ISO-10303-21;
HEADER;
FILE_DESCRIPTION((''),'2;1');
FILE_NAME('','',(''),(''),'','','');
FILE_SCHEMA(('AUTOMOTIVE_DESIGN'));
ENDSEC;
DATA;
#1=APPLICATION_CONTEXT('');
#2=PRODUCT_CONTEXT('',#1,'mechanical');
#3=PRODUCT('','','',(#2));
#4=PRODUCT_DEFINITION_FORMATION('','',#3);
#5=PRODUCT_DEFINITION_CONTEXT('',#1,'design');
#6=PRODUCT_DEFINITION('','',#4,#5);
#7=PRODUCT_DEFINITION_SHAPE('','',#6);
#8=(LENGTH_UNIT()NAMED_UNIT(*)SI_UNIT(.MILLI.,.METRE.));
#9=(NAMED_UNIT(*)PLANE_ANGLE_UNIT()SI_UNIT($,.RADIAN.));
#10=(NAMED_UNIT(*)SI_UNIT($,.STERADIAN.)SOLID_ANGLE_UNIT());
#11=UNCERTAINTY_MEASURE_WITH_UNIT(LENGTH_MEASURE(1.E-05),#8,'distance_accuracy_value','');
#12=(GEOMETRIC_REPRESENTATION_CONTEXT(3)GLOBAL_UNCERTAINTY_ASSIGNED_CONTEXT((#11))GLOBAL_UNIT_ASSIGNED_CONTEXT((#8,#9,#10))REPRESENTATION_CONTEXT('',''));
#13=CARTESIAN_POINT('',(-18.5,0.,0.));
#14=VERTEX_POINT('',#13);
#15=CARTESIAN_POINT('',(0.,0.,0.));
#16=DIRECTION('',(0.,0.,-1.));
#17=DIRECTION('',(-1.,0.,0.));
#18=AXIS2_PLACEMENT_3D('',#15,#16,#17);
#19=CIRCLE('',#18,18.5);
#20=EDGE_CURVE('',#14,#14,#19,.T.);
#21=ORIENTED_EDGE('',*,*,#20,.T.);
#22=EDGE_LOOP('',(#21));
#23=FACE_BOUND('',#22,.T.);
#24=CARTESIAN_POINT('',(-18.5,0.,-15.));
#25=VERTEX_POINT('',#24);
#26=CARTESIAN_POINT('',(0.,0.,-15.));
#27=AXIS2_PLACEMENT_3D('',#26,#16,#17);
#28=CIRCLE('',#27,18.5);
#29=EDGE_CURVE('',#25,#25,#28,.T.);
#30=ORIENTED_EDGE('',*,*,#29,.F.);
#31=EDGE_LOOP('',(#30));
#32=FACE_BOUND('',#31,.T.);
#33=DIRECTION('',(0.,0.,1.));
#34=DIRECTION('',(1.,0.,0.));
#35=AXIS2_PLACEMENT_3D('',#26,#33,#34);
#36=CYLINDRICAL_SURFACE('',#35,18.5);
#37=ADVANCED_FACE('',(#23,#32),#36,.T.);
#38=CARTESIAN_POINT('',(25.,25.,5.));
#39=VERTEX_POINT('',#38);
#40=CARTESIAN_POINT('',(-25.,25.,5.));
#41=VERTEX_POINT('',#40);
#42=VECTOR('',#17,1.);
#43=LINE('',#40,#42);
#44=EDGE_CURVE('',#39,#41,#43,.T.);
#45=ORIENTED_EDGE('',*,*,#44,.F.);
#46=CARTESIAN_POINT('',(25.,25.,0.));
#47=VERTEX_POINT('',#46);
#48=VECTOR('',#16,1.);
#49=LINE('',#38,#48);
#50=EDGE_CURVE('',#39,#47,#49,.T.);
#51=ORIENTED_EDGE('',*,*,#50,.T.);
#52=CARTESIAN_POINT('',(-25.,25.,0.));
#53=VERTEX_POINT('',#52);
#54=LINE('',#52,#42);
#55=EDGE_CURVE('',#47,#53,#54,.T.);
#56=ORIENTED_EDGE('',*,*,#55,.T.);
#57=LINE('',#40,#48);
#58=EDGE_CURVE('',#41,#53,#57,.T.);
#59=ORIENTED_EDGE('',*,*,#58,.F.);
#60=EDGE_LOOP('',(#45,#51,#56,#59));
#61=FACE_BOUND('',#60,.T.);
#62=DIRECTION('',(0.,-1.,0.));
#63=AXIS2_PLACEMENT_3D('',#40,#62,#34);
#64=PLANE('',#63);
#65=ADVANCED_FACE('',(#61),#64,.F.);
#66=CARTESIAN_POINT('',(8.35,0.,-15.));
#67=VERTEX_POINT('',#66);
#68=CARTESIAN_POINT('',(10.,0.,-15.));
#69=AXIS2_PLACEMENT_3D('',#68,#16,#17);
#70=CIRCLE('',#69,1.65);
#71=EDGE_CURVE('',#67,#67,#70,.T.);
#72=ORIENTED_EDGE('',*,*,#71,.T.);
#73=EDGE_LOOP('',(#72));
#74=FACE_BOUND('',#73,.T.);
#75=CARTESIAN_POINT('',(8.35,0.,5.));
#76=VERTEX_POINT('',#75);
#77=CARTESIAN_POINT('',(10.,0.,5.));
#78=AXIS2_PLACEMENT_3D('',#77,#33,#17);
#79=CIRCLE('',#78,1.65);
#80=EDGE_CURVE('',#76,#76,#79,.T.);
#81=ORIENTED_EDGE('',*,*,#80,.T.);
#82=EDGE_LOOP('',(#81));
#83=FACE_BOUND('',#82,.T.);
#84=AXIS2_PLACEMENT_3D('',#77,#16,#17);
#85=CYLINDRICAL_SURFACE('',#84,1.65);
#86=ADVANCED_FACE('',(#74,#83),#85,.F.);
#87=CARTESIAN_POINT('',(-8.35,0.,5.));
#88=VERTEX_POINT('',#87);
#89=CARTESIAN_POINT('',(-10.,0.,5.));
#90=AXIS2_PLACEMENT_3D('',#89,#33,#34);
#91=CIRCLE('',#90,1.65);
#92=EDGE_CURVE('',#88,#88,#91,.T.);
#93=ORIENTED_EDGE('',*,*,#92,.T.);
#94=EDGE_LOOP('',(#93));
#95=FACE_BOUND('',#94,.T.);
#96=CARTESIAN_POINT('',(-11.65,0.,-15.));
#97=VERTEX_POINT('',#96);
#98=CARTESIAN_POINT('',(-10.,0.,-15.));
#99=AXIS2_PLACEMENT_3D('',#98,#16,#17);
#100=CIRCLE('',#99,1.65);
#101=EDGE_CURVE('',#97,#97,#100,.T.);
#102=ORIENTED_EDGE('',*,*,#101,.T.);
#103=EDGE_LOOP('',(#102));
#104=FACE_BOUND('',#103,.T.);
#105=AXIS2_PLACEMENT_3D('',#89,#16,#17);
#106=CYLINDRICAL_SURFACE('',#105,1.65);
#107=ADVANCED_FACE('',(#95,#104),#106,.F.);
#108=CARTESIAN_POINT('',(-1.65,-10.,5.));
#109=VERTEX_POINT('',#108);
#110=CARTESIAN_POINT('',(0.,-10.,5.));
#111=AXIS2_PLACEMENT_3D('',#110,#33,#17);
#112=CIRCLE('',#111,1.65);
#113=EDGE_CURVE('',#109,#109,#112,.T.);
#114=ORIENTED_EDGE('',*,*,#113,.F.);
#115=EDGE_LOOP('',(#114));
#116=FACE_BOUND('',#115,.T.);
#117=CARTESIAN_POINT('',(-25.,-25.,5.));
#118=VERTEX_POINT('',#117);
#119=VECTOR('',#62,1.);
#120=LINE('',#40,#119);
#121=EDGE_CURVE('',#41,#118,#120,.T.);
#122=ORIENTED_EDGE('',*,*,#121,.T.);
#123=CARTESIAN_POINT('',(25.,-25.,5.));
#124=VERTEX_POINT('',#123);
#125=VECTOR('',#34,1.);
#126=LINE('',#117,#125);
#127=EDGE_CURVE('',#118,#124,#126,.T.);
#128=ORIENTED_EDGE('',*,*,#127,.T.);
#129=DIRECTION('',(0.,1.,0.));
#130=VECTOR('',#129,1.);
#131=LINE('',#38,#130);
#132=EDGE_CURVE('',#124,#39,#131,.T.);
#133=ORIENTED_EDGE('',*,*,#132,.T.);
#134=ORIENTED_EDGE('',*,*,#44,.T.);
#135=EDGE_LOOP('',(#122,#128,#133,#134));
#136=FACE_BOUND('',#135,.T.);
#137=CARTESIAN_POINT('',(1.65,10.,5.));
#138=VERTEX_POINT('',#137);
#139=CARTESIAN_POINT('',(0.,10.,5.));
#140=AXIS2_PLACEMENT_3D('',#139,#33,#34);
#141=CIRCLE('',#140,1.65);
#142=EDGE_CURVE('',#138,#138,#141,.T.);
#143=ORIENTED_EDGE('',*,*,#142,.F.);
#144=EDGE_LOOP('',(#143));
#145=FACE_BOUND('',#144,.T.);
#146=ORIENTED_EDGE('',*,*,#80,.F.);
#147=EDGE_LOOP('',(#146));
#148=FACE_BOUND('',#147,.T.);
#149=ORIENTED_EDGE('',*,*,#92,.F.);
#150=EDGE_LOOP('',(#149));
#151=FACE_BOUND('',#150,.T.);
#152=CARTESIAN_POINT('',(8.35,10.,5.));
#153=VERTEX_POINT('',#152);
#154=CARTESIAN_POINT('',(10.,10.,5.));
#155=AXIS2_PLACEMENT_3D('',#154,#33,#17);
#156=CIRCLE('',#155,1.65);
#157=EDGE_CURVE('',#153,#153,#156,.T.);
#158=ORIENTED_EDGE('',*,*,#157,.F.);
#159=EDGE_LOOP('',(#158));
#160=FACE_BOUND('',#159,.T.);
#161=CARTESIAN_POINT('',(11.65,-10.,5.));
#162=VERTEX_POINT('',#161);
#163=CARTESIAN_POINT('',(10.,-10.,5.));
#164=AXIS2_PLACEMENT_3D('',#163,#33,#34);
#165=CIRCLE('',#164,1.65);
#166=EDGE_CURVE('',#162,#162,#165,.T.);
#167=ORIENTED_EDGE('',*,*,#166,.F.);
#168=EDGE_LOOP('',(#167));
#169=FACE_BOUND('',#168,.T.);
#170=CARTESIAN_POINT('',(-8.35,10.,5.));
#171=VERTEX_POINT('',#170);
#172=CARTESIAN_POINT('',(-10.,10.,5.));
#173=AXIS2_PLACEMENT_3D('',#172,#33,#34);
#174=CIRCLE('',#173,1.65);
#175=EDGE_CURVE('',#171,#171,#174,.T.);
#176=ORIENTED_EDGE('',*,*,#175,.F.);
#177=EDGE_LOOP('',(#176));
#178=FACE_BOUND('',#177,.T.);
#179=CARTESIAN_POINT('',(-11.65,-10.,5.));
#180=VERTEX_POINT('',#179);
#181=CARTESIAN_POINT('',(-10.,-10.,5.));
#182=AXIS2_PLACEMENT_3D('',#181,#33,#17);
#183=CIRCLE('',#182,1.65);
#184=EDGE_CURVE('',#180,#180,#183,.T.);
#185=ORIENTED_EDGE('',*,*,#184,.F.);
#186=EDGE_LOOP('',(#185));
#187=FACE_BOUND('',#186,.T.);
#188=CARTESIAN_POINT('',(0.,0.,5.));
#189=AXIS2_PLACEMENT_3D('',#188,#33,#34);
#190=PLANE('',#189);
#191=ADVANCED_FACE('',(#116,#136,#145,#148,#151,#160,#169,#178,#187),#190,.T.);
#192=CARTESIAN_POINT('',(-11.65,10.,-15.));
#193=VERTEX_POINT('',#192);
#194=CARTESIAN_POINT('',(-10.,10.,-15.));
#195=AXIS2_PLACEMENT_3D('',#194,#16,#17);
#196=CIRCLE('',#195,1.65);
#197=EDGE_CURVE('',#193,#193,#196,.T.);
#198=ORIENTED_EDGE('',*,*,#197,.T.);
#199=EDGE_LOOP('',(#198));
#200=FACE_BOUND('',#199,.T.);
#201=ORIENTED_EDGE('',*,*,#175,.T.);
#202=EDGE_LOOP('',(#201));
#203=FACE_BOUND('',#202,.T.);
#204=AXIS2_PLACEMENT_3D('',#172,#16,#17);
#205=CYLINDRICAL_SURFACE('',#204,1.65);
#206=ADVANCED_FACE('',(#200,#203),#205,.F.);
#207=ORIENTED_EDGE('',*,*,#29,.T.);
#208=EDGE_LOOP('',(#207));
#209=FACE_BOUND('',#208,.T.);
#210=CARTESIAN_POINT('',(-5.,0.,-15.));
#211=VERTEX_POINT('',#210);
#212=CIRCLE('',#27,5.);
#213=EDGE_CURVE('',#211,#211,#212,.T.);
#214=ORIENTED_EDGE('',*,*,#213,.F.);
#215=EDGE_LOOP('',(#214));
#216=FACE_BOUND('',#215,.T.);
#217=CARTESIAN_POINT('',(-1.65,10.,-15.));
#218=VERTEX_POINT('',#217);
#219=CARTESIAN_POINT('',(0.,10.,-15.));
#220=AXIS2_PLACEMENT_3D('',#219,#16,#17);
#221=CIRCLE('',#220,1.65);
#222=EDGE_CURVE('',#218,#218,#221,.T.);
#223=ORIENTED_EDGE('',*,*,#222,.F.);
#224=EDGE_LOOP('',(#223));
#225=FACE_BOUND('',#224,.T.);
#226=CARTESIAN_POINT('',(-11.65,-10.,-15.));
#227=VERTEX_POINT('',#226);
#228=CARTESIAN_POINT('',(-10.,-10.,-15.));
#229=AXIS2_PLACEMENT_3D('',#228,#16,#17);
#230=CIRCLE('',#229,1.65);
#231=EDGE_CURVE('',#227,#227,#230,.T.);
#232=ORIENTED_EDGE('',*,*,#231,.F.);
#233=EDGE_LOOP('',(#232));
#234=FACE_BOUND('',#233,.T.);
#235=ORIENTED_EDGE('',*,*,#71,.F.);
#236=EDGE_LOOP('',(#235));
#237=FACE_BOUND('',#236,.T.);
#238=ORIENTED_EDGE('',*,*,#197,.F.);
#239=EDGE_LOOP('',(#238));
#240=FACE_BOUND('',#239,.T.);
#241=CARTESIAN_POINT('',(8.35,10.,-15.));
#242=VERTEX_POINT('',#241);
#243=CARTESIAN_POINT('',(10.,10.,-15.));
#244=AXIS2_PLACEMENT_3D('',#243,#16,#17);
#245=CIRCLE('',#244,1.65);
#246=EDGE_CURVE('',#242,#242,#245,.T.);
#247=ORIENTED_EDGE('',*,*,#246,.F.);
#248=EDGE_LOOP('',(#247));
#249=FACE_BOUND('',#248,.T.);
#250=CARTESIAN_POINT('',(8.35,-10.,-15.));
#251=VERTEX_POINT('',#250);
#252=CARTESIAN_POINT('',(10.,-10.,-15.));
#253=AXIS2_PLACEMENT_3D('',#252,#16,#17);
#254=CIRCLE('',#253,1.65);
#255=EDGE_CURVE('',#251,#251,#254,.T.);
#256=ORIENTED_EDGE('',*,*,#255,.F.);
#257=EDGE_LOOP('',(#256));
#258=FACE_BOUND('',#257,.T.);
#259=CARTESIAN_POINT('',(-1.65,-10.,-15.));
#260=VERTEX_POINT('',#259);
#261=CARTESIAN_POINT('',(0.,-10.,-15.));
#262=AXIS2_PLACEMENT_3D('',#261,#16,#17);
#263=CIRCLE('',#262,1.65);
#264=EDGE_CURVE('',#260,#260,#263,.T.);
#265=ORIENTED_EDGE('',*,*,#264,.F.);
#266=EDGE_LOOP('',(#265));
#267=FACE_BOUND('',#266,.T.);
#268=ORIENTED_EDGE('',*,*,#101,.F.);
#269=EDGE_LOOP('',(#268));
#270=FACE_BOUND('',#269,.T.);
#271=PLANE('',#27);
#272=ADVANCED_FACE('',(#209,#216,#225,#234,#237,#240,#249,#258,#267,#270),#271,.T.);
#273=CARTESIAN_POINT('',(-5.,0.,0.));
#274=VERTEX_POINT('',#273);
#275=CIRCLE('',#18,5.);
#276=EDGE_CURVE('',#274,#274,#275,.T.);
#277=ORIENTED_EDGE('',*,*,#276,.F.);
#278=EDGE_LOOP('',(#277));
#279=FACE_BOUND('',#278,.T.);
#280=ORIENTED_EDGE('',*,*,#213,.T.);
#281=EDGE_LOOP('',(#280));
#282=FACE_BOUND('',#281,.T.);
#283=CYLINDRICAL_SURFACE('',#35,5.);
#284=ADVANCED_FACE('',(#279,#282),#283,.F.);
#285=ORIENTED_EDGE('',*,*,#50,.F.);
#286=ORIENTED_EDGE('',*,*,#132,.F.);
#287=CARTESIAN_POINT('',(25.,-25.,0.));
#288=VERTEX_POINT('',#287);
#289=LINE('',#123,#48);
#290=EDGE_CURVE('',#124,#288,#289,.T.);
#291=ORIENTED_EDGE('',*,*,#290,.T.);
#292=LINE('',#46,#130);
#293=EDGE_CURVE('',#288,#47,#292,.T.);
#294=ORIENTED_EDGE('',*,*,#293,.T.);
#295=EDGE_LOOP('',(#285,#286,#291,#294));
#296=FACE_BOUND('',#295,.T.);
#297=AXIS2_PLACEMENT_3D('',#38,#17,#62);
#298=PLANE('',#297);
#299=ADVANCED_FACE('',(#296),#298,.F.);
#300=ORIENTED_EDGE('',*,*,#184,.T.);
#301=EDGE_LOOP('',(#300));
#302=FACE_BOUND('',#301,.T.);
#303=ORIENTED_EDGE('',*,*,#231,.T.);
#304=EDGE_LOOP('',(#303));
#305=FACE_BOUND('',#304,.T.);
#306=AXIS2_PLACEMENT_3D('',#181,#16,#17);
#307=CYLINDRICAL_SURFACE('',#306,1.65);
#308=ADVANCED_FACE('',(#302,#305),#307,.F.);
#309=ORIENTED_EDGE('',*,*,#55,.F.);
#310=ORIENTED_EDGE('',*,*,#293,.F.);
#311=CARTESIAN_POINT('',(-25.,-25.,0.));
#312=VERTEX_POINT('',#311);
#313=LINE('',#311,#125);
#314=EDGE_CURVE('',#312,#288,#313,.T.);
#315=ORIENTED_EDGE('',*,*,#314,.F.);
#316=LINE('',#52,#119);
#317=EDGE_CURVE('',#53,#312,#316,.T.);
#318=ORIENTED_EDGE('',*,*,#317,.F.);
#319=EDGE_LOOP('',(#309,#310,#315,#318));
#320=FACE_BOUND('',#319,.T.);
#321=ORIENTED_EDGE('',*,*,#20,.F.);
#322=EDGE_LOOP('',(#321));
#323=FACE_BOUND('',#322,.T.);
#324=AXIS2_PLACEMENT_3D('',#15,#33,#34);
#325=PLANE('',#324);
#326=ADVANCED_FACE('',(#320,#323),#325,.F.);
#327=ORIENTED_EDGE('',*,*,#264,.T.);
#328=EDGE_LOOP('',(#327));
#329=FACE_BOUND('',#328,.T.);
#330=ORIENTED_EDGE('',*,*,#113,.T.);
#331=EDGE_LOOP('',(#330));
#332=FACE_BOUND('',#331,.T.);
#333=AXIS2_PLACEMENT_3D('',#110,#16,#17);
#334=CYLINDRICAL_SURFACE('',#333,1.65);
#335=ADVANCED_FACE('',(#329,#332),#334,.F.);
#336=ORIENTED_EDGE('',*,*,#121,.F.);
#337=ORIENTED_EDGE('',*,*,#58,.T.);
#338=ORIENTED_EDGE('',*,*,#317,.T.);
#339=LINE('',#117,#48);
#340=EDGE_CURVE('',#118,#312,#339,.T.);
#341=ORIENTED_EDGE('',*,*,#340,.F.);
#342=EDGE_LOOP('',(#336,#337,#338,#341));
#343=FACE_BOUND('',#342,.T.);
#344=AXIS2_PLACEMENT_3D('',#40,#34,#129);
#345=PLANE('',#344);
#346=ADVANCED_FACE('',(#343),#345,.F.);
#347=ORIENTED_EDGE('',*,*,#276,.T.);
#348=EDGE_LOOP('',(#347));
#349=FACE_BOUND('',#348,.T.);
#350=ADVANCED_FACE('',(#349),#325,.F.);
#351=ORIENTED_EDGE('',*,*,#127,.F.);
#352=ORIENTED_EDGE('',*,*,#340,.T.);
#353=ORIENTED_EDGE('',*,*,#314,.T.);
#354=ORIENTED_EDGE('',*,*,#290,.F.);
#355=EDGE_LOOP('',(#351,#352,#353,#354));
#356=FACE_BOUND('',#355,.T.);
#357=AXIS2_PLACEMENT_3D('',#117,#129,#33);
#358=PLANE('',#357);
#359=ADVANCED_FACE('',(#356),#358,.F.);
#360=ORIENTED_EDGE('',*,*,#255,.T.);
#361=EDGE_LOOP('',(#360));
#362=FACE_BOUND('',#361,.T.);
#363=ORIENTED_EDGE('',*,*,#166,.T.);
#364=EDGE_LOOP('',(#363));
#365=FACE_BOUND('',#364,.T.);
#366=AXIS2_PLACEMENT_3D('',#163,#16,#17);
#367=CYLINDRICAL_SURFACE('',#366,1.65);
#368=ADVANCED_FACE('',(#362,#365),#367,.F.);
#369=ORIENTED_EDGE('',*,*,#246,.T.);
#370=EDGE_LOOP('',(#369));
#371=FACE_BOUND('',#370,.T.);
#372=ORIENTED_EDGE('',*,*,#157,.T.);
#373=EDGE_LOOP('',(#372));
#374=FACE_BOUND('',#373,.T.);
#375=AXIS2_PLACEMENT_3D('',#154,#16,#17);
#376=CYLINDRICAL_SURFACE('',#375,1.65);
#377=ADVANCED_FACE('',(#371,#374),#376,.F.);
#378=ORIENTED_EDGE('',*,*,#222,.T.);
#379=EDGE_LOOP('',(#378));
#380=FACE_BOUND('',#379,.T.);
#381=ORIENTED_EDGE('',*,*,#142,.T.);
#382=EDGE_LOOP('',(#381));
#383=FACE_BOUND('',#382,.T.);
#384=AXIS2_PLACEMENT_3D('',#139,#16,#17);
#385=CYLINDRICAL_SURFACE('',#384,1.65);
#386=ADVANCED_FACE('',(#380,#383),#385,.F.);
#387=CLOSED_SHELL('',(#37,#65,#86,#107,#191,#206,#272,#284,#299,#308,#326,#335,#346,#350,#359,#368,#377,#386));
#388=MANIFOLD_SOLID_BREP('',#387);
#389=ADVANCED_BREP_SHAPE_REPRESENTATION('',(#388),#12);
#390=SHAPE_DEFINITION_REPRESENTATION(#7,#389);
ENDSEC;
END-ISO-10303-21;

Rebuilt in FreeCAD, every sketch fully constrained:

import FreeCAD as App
import Part
import Sketcher

V = App.Vector

doc = App.newDocument("Part")
body = doc.addObject("PartDesign::Body", "Body")

# Sketch on XY plane
sketch1 = body.newObject("Sketcher::SketchObject", "Sketch")
sketch1.AttachmentSupport = (doc.getObject("XY_Plane"), [""])
sketch1.MapMode = "FlatFace"
sketch1.addGeometry([
    Part.LineSegment(V(-25, 25, 0), V(-25, -25, 0)),  # 0
    Part.LineSegment(V(-25, -25, 0), V(25, -25, 0)),  # 1
    Part.LineSegment(V(25, -25, 0), V(25, 25, 0)),  # 2
    Part.LineSegment(V(25, 25, 0), V(-25, 25, 0)),  # 3
    Part.Circle(V(-10, -10, 0), V(0, 0, 1), 1.6),  # 4
    Part.Circle(V(0, -10, 0), V(0, 0, 1), 1.6),  # 5
    Part.Circle(V(10, -10, 0), V(0, 0, 1), 1.6),  # 6
    Part.Circle(V(-10, 0, 0), V(0, 0, 1), 1.6),  # 7
    Part.Circle(V(-10, 10, 0), V(0, 0, 1), 1.6),  # 8
    Part.Circle(V(10, 0, 0), V(0, 0, 1), 1.6),  # 9
    Part.Circle(V(0, 10, 0), V(0, 0, 1), 1.6),  # 10
    Part.Circle(V(10, 10, 0), V(0, 0, 1), 1.6),  # 11
], False)
sketch1.addConstraint([
    Sketcher.Constraint("Coincident", 0, 2, 1, 1),
    Sketcher.Constraint("Coincident", 1, 2, 2, 1),
    Sketcher.Constraint("Coincident", 2, 2, 3, 1),
    Sketcher.Constraint("Coincident", 3, 2, 0, 1),
    Sketcher.Constraint("Vertical", 0),
    Sketcher.Constraint("Horizontal", 1),
    Sketcher.Constraint("Vertical", 2),
    Sketcher.Constraint("Horizontal", 3),
    Sketcher.Constraint("Equal", 4, 5),
    Sketcher.Constraint("Equal", 5, 6),
    Sketcher.Constraint("Equal", 6, 7),
    Sketcher.Constraint("Equal", 7, 8),
    Sketcher.Constraint("Equal", 8, 9),
    Sketcher.Constraint("Equal", 9, 10),
    Sketcher.Constraint("Equal", 10, 11),
    Sketcher.Constraint("Symmetric", 6, 3, 8, 3, -1, 1),
    Sketcher.Constraint("Symmetric", 7, 3, 9, 3, -1, 1),
    Sketcher.Constraint("Symmetric", 5, 3, 10, 3, -1, 1),
    Sketcher.Constraint("Symmetric", 4, 3, 11, 3, -1, 1),
    Sketcher.Constraint("Symmetric", 0, 2, 2, 2, -1, 1),
    Sketcher.Constraint("Symmetric", 4, 3, 6, 3, -2),
    Sketcher.Constraint("PointOnObject", 5, 3, -2),
    Sketcher.Constraint("PointOnObject", 7, 3, -1),
    Sketcher.Constraint("Horizontal", 4, 3, 5, 3),
    Sketcher.Constraint("Vertical", 4, 3, 7, 3),
    Sketcher.Constraint("Equal", 3, 0),
    Sketcher.Constraint("Diameter", 4, 3.3),
    Sketcher.Constraint("DistanceX", 1, 1, 1, 2, 50.0),
    Sketcher.Constraint("DistanceX", 4, 3, -1, 1, 10.0),
    Sketcher.Constraint("DistanceY", 4, 3, -1, 1, 10.0),
])
pad1 = body.newObject("PartDesign::Pad", "Pad")
pad1.Profile = sketch1
pad1.Length = 5

# Sketch on XY plane
sketch2 = body.newObject("Sketcher::SketchObject", "Sketch001")
sketch2.AttachmentSupport = (doc.getObject("XY_Plane"), [""])
sketch2.MapMode = "FlatFace"
sketch2.AttachmentOffset = App.Placement(V(0, 0, -15), App.Rotation())
sketch2.addGeometry([
    Part.Circle(V(0, 0, 0), V(0, 0, 1), 18.5),  # 0
    Part.Circle(V(10, -10, 0), V(0, 0, 1), 1.6),  # 1
    Part.Circle(V(0, -10, 0), V(0, 0, 1), 1.6),  # 2
    Part.Circle(V(-10, -10, 0), V(0, 0, 1), 1.6),  # 3
    Part.Circle(V(10, 0, 0), V(0, 0, 1), 1.6),  # 4
    Part.Circle(V(0, 0, 0), V(0, 0, 1), 5),  # 5
    Part.Circle(V(10, 10, 0), V(0, 0, 1), 1.6),  # 6
    Part.Circle(V(-10, 0, 0), V(0, 0, 1), 1.6),  # 7
    Part.Circle(V(0, 10, 0), V(0, 0, 1), 1.6),  # 8
    Part.Circle(V(-10, 10, 0), V(0, 0, 1), 1.6),  # 9
], False)
sketch2.addConstraint([
    Sketcher.Constraint("Coincident", 0, 3, -1, 1),
    Sketcher.Constraint("Coincident", 5, 3, -1, 1),
    Sketcher.Constraint("Equal", 1, 2),
    Sketcher.Constraint("Equal", 2, 3),
    Sketcher.Constraint("Equal", 3, 4),
    Sketcher.Constraint("Equal", 4, 6),
    Sketcher.Constraint("Equal", 6, 7),
    Sketcher.Constraint("Equal", 7, 8),
    Sketcher.Constraint("Equal", 8, 9),
    Sketcher.Constraint("Symmetric", 3, 3, 6, 3, -1, 1),
    Sketcher.Constraint("Symmetric", 4, 3, 7, 3, -1, 1),
    Sketcher.Constraint("Symmetric", 2, 3, 8, 3, -1, 1),
    Sketcher.Constraint("Symmetric", 1, 3, 9, 3, -1, 1),
    Sketcher.Constraint("Symmetric", 1, 3, 3, 3, -2),
    Sketcher.Constraint("PointOnObject", 2, 3, -2),
    Sketcher.Constraint("PointOnObject", 4, 3, -1),
    Sketcher.Constraint("Horizontal", 1, 3, 2, 3),
    Sketcher.Constraint("Vertical", 1, 3, 4, 3),
    Sketcher.Constraint("Diameter", 0, 37.0),
    Sketcher.Constraint("Diameter", 5, 10.0),
    Sketcher.Constraint("Diameter", 1, 3.3),
    Sketcher.Constraint("DistanceX", -1, 1, 1, 3, 10.0),
    Sketcher.Constraint("DistanceY", 1, 3, -1, 1, 10.0),
])
pad2 = body.newObject("PartDesign::Pad", "Pad001")
pad2.Profile = sketch2
pad2.Length = 15

doc.recompute()
